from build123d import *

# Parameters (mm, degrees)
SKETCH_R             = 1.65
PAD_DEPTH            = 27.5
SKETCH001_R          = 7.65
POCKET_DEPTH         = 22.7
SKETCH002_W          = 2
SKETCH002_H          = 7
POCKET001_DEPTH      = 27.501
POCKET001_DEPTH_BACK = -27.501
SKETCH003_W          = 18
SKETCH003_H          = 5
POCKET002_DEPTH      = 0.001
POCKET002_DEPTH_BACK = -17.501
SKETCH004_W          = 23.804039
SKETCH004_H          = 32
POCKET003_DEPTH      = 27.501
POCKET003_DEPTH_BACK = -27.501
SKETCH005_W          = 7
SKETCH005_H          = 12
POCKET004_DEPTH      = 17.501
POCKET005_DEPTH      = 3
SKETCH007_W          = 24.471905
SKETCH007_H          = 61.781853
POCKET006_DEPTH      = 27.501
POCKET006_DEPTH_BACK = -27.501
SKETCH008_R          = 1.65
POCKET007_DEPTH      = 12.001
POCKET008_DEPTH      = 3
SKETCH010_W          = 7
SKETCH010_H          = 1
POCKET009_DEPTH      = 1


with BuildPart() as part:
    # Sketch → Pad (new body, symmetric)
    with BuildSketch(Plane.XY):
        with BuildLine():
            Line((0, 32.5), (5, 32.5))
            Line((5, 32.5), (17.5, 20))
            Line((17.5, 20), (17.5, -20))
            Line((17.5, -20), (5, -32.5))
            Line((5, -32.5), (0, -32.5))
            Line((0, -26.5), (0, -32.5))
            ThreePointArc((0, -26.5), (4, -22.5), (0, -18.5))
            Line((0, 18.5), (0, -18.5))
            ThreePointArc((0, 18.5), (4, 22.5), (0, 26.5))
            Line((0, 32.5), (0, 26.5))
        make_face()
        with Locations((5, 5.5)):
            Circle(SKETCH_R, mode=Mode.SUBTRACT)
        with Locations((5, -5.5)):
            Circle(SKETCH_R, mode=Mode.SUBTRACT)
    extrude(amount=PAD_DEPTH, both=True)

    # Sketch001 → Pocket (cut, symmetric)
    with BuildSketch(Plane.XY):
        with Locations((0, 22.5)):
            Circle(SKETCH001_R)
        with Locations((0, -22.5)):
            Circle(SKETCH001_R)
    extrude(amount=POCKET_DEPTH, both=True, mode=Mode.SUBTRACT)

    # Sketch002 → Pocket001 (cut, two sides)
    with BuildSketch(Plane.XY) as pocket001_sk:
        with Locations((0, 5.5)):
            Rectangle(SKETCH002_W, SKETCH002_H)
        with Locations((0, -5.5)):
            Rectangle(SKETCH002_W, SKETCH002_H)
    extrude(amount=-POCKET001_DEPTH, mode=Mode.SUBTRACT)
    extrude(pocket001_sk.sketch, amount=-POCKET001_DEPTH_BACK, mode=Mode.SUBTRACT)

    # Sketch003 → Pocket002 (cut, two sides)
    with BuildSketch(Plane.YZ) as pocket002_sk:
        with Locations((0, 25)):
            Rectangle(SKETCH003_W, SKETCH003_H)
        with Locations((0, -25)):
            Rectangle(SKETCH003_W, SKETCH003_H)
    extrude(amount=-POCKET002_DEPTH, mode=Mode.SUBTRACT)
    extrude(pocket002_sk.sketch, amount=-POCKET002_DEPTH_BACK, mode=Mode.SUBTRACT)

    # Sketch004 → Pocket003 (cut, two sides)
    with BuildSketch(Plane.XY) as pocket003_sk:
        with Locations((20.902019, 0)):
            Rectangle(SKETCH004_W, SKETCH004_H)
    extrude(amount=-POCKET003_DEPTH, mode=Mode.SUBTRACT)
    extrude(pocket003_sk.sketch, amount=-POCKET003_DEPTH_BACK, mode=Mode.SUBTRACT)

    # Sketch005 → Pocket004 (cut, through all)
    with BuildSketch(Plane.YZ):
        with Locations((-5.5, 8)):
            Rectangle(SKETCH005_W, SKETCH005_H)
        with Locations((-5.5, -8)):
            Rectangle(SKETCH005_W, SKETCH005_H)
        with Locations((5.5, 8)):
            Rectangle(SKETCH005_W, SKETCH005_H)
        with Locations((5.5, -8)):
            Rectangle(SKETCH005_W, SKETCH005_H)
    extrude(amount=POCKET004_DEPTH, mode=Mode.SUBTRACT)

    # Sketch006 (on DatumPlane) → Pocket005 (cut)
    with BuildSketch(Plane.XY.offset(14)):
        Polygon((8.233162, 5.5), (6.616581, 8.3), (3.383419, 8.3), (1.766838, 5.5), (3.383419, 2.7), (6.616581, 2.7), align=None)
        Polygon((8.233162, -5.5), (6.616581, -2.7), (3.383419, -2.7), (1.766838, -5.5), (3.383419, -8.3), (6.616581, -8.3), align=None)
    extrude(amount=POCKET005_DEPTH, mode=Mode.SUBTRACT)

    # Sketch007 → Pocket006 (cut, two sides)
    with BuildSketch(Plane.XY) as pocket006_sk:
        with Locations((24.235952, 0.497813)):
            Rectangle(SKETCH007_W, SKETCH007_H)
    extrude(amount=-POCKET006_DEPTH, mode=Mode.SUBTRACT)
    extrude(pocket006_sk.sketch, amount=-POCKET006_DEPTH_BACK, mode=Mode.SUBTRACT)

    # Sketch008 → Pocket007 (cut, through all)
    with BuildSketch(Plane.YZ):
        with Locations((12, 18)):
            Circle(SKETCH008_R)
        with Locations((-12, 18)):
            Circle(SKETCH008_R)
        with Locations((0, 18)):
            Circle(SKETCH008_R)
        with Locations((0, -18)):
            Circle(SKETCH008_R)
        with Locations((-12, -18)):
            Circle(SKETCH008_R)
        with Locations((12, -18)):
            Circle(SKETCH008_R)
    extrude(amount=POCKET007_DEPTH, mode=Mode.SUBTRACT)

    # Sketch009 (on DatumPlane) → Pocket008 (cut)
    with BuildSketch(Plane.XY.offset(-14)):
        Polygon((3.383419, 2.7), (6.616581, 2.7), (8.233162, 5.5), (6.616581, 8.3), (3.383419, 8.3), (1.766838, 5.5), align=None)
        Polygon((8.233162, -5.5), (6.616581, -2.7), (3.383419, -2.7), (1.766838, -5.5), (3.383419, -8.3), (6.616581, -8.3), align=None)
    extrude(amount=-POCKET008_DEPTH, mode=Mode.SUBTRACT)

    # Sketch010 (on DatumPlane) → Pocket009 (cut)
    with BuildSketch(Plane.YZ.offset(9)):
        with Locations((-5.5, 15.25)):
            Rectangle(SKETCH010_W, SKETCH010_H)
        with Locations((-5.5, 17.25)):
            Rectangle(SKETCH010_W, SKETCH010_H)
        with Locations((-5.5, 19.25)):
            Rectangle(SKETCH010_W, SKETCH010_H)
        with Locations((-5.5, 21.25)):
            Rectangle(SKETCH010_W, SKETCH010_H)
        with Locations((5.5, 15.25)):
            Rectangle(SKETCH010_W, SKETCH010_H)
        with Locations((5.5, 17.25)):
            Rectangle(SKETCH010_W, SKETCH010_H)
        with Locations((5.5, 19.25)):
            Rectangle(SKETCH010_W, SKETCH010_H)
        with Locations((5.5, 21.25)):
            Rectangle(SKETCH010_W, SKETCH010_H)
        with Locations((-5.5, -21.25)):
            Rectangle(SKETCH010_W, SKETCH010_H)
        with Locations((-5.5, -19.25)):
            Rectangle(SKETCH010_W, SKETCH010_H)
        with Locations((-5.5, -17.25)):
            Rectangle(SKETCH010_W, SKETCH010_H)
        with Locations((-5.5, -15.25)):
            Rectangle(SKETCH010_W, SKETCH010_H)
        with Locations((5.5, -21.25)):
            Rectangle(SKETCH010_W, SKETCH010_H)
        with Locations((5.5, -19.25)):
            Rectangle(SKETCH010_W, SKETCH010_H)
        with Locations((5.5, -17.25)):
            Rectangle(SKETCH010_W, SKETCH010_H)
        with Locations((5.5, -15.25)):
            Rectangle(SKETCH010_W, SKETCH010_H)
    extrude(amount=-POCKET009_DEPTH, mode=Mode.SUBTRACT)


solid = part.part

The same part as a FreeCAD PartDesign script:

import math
import FreeCAD as App
import Part
import Sketcher
Q = App.Units.Quantity

doc = App.newDocument("Part")
body = doc.addObject("PartDesign::Body", "Body")

# Sketch on XY plane
sketch1 = body.newObject("Sketcher::SketchObject", "Sketch")
sketch1.AttachmentSupport = (doc.getObject("XY_Plane"), [""])
sketch1.MapMode = "FlatFace"
sketch1.addGeometry(Part.LineSegment(App.Vector(5, 32.5, 0), App.Vector(0, 32.5, 0)), False)
sketch1.addGeometry(Part.LineSegment(App.Vector(0, 32.5, 0), App.Vector(0, 26.5, 0)), False)
sketch1.addGeometry(Part.ArcOfCircle(Part.Circle(App.Vector(0, 22.5, 0), App.Vector(0, 0, 1), 4), math.radians(-90), math.radians(90)), False)
sketch1.addGeometry(Part.LineSegment(App.Vector(0, 18.5, 0), App.Vector(0, -18.5, 0)), False)
sketch1.addGeometry(Part.ArcOfCircle(Part.Circle(App.Vector(0, -22.5, 0), App.Vector(0, 0, 1), 4), math.radians(-90), math.radians(90)), False)
sketch1.addGeometry(Part.LineSegment(App.Vector(0, -26.5, 0), App.Vector(0, -32.5, 0)), False)
sketch1.addGeometry(Part.LineSegment(App.Vector(0, -32.5, 0), App.Vector(5, -32.5, 0)), False)
sketch1.addGeometry(Part.LineSegment(App.Vector(5, -32.5, 0), App.Vector(17.5, -20, 0)), False)
sketch1.addGeometry(Part.LineSegment(App.Vector(17.5, -20, 0), App.Vector(17.5, 20, 0)), False)
sketch1.addGeometry(Part.LineSegment(App.Vector(17.5, 20, 0), App.Vector(5, 32.5, 0)), False)
sketch1.addGeometry(Part.Circle(App.Vector(5, -5.5, 0), App.Vector(0, 0, 1), 1.6), False)
sketch1.addGeometry(Part.Circle(App.Vector(5, 5.5, 0), App.Vector(0, 0, 1), 1.6), False)
sketch1.addConstraint(Sketcher.Constraint("Coincident", 0, 2, 1, 1))
sketch1.addConstraint(Sketcher.Constraint("Coincident", 1, 2, 2, 2))
sketch1.addConstraint(Sketcher.Constraint("Coincident", 2, 1, 3, 1))
sketch1.addConstraint(Sketcher.Constraint("Coincident", 3, 2, 4, 2))
sketch1.addConstraint(Sketcher.Constraint("Coincident", 4, 1, 5, 1))
sketch1.addConstraint(Sketcher.Constraint("Coincident", 5, 2, 6, 1))
sketch1.addConstraint(Sketcher.Constraint("Coincident", 6, 2, 7, 1))
sketch1.addConstraint(Sketcher.Constraint("Coincident", 7, 2, 8, 1))
sketch1.addConstraint(Sketcher.Constraint("Coincident", 8, 2, 9, 1))
sketch1.addConstraint(Sketcher.Constraint("Coincident", 9, 2, 0, 1))
sketch1.addConstraint(Sketcher.Constraint("Horizontal", 0))
sketch1.addConstraint(Sketcher.Constraint("Vertical", 1))
sketch1.addConstraint(Sketcher.Constraint("Vertical", 3))
sketch1.addConstraint(Sketcher.Constraint("Vertical", 5))
sketch1.addConstraint(Sketcher.Constraint("Horizontal", 6))
sketch1.addConstraint(Sketcher.Constraint("Vertical", 8))
sketch1.addConstraint(Sketcher.Constraint("Equal", 2, 4))
sketch1.addConstraint(Sketcher.Constraint("Equal", 10, 11))
sketch1.addConstraint(Sketcher.Constraint("Symmetric", 2, 3, 4, 3, -1, 1))
sketch1.addConstraint(Sketcher.Constraint("Symmetric", 0, 2, 5, 2, -1, 1))
sketch1.addConstraint(Sketcher.Constraint("Symmetric", 10, 3, 11, 3, -1))
sketch1.addConstraint(Sketcher.Constraint("PointOnObject", 2, 3, -2))
sketch1.addConstraint(Sketcher.Constraint("PointOnObject", 0, 2, -2))
sketch1.addConstraint(Sketcher.Constraint("PointOnObject", 2, 1, -2))
sketch1.addConstraint(Sketcher.Constraint("Perpendicular", 7, 9))
sketch1.addConstraint(Sketcher.Constraint("Vertical", 11, 3, 6, 2))
sketch1.addConstraint(Sketcher.Constraint("Vertical", 6, 2, 9, 2))
sketch1.addConstraint(Sketcher.Constraint("Equal", 7, 9))
sketch1.addConstraint(Sketcher.Constraint("Radius", 2, Q("4 mm")))
sketch1.addConstraint(Sketcher.Constraint("Diameter", 10, Q("3.3 mm")))
sketch1.addConstraint(Sketcher.Constraint("DistanceX", 0, 2, 0, 1, Q("5 mm")))
sketch1.addConstraint(Sketcher.Constraint("DistanceY", 1, 2, 1, 1, Q("6 mm")))
sketch1.addConstraint(Sketcher.Constraint("DistanceY", 3, 2, 3, 1, Q("37 mm")))
sketch1.addConstraint(Sketcher.Constraint("DistanceY", 8, 1, 8, 2, Q("40 mm")))
sketch1.addConstraint(Sketcher.Constraint("DistanceY", 4, 3, 10, 3, Q("17 mm")))
pad1 = body.newObject("PartDesign::Pad", "Pad")
pad1.Profile = sketch1
pad1.Length = 55
pad1.Midplane = True

# Sketch on XY plane
sketch2 = body.newObject("Sketcher::SketchObject", "Sketch001")
sketch2.AttachmentSupport = (doc.getObject("XY_Plane"), [""])
sketch2.MapMode = "FlatFace"
sketch2.addGeometry(Part.Circle(App.Vector(0, 22, 0), App.Vector(0, 0, 1), 8), False)
sketch2.addGeometry(Part.Circle(App.Vector(0, -22, 0), App.Vector(0, 0, 1), 8), False)
sketch2.addConstraint(Sketcher.Constraint("Equal", 0, 1))
sketch2.addConstraint(Sketcher.Constraint("Symmetric", 0, 3, 1, 3, -1, 1))
sketch2.addConstraint(Sketcher.Constraint("PointOnObject", 0, 3, -2))
sketch2.addConstraint(Sketcher.Constraint("Diameter", 0, Q("15.3 mm")))
sketch2.addConstraint(Sketcher.Constraint("DistanceY", 1, 3, 0, 3, Q("45 mm")))
pocket1 = body.newObject("PartDesign::Pocket", "Pocket")
pocket1.Profile = sketch2
pocket1.Length = 45.4
pocket1.Midplane = True

# Sketch on XY plane
sketch3 = body.newObject("Sketcher::SketchObject", "Sketch002")
sketch3.AttachmentSupport = (doc.getObject("XY_Plane"), [""])
sketch3.MapMode = "FlatFace"
sketch3.addGeometry(Part.LineSegment(App.Vector(-1, 9, 0), App.Vector(-1, 2, 0)), False)
sketch3.addGeometry(Part.LineSegment(App.Vector(-1, 2, 0), App.Vector(1, 2, 0)), False)
sketch3.addGeometry(Part.LineSegment(App.Vector(1, 2, 0), App.Vector(1, 9, 0)), False)
sketch3.addGeometry(Part.LineSegment(App.Vector(1, 9, 0), App.Vector(-1, 9, 0)), False)
sketch3.addGeometry(Part.LineSegment(App.Vector(-1, -2, 0), App.Vector(-1, -9, 0)), False)
sketch3.addGeometry(Part.LineSegment(App.Vector(-1, -9, 0), App.Vector(1, -9, 0)), False)
sketch3.addGeometry(Part.LineSegment(App.Vector(1, -9, 0), App.Vector(1, -2, 0)), False)
sketch3.addGeometry(Part.LineSegment(App.Vector(1, -2, 0), App.Vector(-1, -2, 0)), False)
sketch3.addConstraint(Sketcher.Constraint("Coincident", 0, 2, 1, 1))
sketch3.addConstraint(Sketcher.Constraint("Coincident", 1, 2, 2, 1))
sketch3.addConstraint(Sketcher.Constraint("Coincident", 2, 2, 3, 1))
sketch3.addConstraint(Sketcher.Constraint("Coincident", 3, 2, 0, 1))
sketch3.addConstraint(Sketcher.Constraint("Coincident", 4, 2, 5, 1))
sketch3.addConstraint(Sketcher.Constraint("Coincident", 5, 2, 6, 1))
sketch3.addConstraint(Sketcher.Constraint("Coincident", 6, 2, 7, 1))
sketch3.addConstraint(Sketcher.Constraint("Coincident", 7, 2, 4, 1))
sketch3.addConstraint(Sketcher.Constraint("Vertical", 0))
sketch3.addConstraint(Sketcher.Constraint("Horizontal", 1))
sketch3.addConstraint(Sketcher.Constraint("Vertical", 2))
sketch3.addConstraint(Sketcher.Constraint("Horizontal", 3))
sketch3.addConstraint(Sketcher.Constraint("Vertical", 4))
sketch3.addConstraint(Sketcher.Constraint("Horizontal", 5))
sketch3.addConstraint(Sketcher.Constraint("Vertical", 6))
sketch3.addConstraint(Sketcher.Constraint("Horizontal", 7))
sketch3.addConstraint(Sketcher.Constraint("Symmetric", 2, 2, 4, 2, -1, 1))
sketch3.addConstraint(Sketcher.Constraint("Symmetric", 0, 2, 6, 2, -1, 1))
sketch3.addConstraint(Sketcher.Constraint("Vertical", 3, 2, 4, 2))
sketch3.addConstraint(Sketcher.Constraint("DistanceX", 1, 1, 1, 2, Q("2 mm")))
sketch3.addConstraint(Sketcher.Constraint("DistanceY", 0, 2, 0, 1, Q("7 mm")))
sketch3.addConstraint(Sketcher.Constraint("DistanceY", -1, 1, 0, 2, Q("2 mm")))
pocket2 = body.newObject("PartDesign::Pocket", "Pocket001")
pocket2.Profile = sketch3
pocket2.Type = "ThroughAll"
pocket2.Midplane = True

# Sketch on YZ plane
sketch4 = body.newObject("Sketcher::SketchObject", "Sketch003")
sketch4.AttachmentSupport = (doc.getObject("YZ_Plane"), [""])
sketch4.MapMode = "FlatFace"
sketch4.addGeometry(Part.LineSegment(App.Vector(-9, 28, 0), App.Vector(-9, 22, 0)), False)
sketch4.addGeometry(Part.LineSegment(App.Vector(-9, 22, 0), App.Vector(9, 22, 0)), False)
sketch4.addGeometry(Part.LineSegment(App.Vector(9, 22, 0), App.Vector(9, 28, 0)), False)
sketch4.addGeometry(Part.LineSegment(App.Vector(9, 28, 0), App.Vector(-9, 28, 0)), False)
sketch4.addGeometry(Part.LineSegment(App.Vector(-9, -22, 0), App.Vector(-9, -28, 0)), False)
sketch4.addGeometry(Part.LineSegment(App.Vector(-9, -28, 0), App.Vector(9, -28, 0)), False)
sketch4.addGeometry(Part.LineSegment(App.Vector(9, -28, 0), App.Vector(9, -22, 0)), False)
sketch4.addGeometry(Part.LineSegment(App.Vector(9, -22, 0), App.Vector(-9, -22, 0)), False)
sketch4.addConstraint(Sketcher.Constraint("Coincident", 0, 2, 1, 1))
sketch4.addConstraint(Sketcher.Constraint("Coincident", 1, 2, 2, 1))
sketch4.addConstraint(Sketcher.Constraint("Coincident", 2, 2, 3, 1))
sketch4.addConstraint(Sketcher.Constraint("Coincident", 3, 2, 0, 1))
sketch4.addConstraint(Sketcher.Constraint("Coincident", 4, 2, 5, 1))
sketch4.addConstraint(Sketcher.Constraint("Coincident", 5, 2, 6, 1))
sketch4.addConstraint(Sketcher.Constraint("Coincident", 6, 2, 7, 1))
sketch4.addConstraint(Sketcher.Constraint("Coincident", 7, 2, 4, 1))
sketch4.addConstraint(Sketcher.Constraint("Vertical", 0))
sketch4.addConstraint(Sketcher.Constraint("Horizontal", 1))
sketch4.addConstraint(Sketcher.Constraint("Vertical", 2))
sketch4.addConstraint(Sketcher.Constraint("Horizontal", 3))
sketch4.addConstraint(Sketcher.Constraint("Vertical", 4))
sketch4.addConstraint(Sketcher.Constraint("Horizontal", 5))
sketch4.addConstraint(Sketcher.Constraint("Vertical", 6))
sketch4.addConstraint(Sketcher.Constraint("Horizontal", 7))
sketch4.addConstraint(Sketcher.Constraint("Symmetric", 2, 2, 4, 2, -1, 1))
sketch4.addConstraint(Sketcher.Constraint("Symmetric", 0, 2, 6, 2, -1, 1))
sketch4.addConstraint(Sketcher.Constraint("Vertical", 3, 2, 4, 2))
sketch4.addConstraint(Sketcher.Constraint("DistanceX", 1, 1, 1, 2, Q("18 mm")))
sketch4.addConstraint(Sketcher.Constraint("DistanceY", 0, 2, 0, 1, Q("5 mm")))
sketch4.addConstraint(Sketcher.Constraint("DistanceY", 4, 2, 0, 2, Q("50 mm")))
pocket3 = body.newObject("PartDesign::Pocket", "Pocket002")
pocket3.Profile = sketch4
pocket3.Type = "ThroughAll"
pocket3.Midplane = True

# Sketch on XY plane
sketch5 = body.newObject("Sketcher::SketchObject", "Sketch004")
sketch5.AttachmentSupport = (doc.getObject("XY_Plane"), [""])
sketch5.MapMode = "FlatFace"
sketch5.addGeometry(Part.LineSegment(App.Vector(9, 16, 0), App.Vector(9, -16, 0)), False)
sketch5.addGeometry(Part.LineSegment(App.Vector(9, -16, 0), App.Vector(33, -16, 0)), False)
sketch5.addGeometry(Part.LineSegment(App.Vector(33, -16, 0), App.Vector(33, 16, 0)), False)
sketch5.addGeometry(Part.LineSegment(App.Vector(33, 16, 0), App.Vector(9, 16, 0)), False)
sketch5.addConstraint(Sketcher.Constraint("Coincident", 0, 2, 1, 1))
sketch5.addConstraint(Sketcher.Constraint("Coincident", 1, 2, 2, 1))
sketch5.addConstraint(Sketcher.Constraint("Coincident", 2, 2, 3, 1))
sketch5.addConstraint(Sketcher.Constraint("Coincident", 3, 2, 0, 1))
sketch5.addConstraint(Sketcher.Constraint("Vertical", 0))
sketch5.addConstraint(Sketcher.Constraint("Horizontal", 1))
sketch5.addConstraint(Sketcher.Constraint("Vertical", 2))
sketch5.addConstraint(Sketcher.Constraint("Horizontal", 3))
sketch5.addConstraint(Sketcher.Constraint("DistanceY", 0, 2, 0, 1, Q("32 mm")))
sketch5.addConstraint(Sketcher.Constraint("DistanceX", -1, 1, 0, 2, Q("8.999999 mm")))
sketch5.addConstraint(Sketcher.Constraint("DistanceY", 0, 2, -1, 1, Q("16 mm")))
sketch5.addConstraint(Sketcher.Constraint("DistanceX", 1, 1, 1, 2, Q("23.804039 mm")))
pocket4 = body.newObject("PartDesign::Pocket", "Pocket003")
pocket4.Profile = sketch5
pocket4.Type = "ThroughAll"
pocket4.Midplane = True

# Sketch on YZ plane
sketch6 = body.newObject("Sketcher::SketchObject", "Sketch005")
sketch6.AttachmentSupport = (doc.getObject("YZ_Plane"), [""])
sketch6.MapMode = "FlatFace"
sketch6.addGeometry(Part.LineSegment(App.Vector(-9, 14, 0), App.Vector(-9, 2, 0)), False)
sketch6.addGeometry(Part.LineSegment(App.Vector(-9, 2, 0), App.Vector(-2, 2, 0)), False)
sketch6.addGeometry(Part.LineSegment(App.Vector(-2, 2, 0), App.Vector(-2, 14, 0)), False)
sketch6.addGeometry(Part.LineSegment(App.Vector(-2, 14, 0), App.Vector(-9, 14, 0)), False)
sketch6.addGeometry(Part.LineSegment(App.Vector(-9, -2, 0), App.Vector(-9, -14, 0)), False)
sketch6.addGeometry(Part.LineSegment(App.Vector(-9, -14, 0), App.Vector(-2, -14, 0)), False)
sketch6.addGeometry(Part.LineSegment(App.Vector(-2, -14, 0), App.Vector(-2, -2, 0)), False)
sketch6.addGeometry(Part.LineSegment(App.Vector(-2, -2, 0), App.Vector(-9, -2, 0)), False)
sketch6.addGeometry(Part.LineSegment(App.Vector(2, 14, 0), App.Vector(2, 2, 0)), False)
sketch6.addGeometry(Part.LineSegment(App.Vector(2, 2, 0), App.Vector(9, 2, 0)), False)
sketch6.addGeometry(Part.LineSegment(App.Vector(9, 2, 0), App.Vector(9, 14, 0)), False)
sketch6.addGeometry(Part.LineSegment(App.Vector(9, 14, 0), App.Vector(2, 14, 0)), False)
sketch6.addGeometry(Part.LineSegment(App.Vector(2, -2, 0), App.Vector(2, -14, 0)), False)
sketch6.addGeometry(Part.LineSegment(App.Vector(2, -14, 0), App.Vector(9, -14, 0)), False)
sketch6.addGeometry(Part.LineSegment(App.Vector(9, -14, 0), App.Vector(9, -2, 0)), False)
sketch6.addGeometry(Part.LineSegment(App.Vector(9, -2, 0), App.Vector(2, -2, 0)), False)
sketch6.addConstraint(Sketcher.Constraint("Coincident", 0, 2, 1, 1))
sketch6.addConstraint(Sketcher.Constraint("Coincident", 1, 2, 2, 1))
sketch6.addConstraint(Sketcher.Constraint("Coincident", 2, 2, 3, 1))
sketch6.addConstraint(Sketcher.Constraint("Coincident", 3, 2, 0, 1))
sketch6.addConstraint(Sketcher.Constraint("Coincident", 4, 2, 5, 1))
sketch6.addConstraint(Sketcher.Constraint("Coincident", 5, 2, 6, 1))
sketch6.addConstraint(Sketcher.Constraint("Coincident", 6, 2, 7, 1))
sketch6.addConstraint(Sketcher.Constraint("Coincident", 7, 2, 4, 1))
sketch6.addConstraint(Sketcher.Constraint("Coincident", 8, 2, 9, 1))
sketch6.addConstraint(Sketcher.Constraint("Coincident", 9, 2, 10, 1))
sketch6.addConstraint(Sketcher.Constraint("Coincident", 10, 2, 11, 1))
sketch6.addConstraint(Sketcher.Constraint("Coincident", 11, 2, 8, 1))
sketch6.addConstraint(Sketcher.Constraint("Coincident", 12, 2, 13, 1))
sketch6.addConstraint(Sketcher.Constraint("Coincident", 13, 2, 14, 1))
sketch6.addConstraint(Sketcher.Constraint("Coincident", 14, 2, 15, 1))
sketch6.addConstraint(Sketcher.Constraint("Coincident", 15, 2, 12, 1))
sketch6.addConstraint(Sketcher.Constraint("Vertical", 0))
sketch6.addConstraint(Sketcher.Constraint("Horizontal", 1))
sketch6.addConstraint(Sketcher.Constraint("Vertical", 2))
sketch6.addConstraint(Sketcher.Constraint("Horizontal", 3))
sketch6.addConstraint(Sketcher.Constraint("Vertical", 4))
sketch6.addConstraint(Sketcher.Constraint("Horizontal", 5))
sketch6.addConstraint(Sketcher.Constraint("Vertical", 6))
sketch6.addConstraint(Sketcher.Constraint("Horizontal", 7))
sketch6.addConstraint(Sketcher.Constraint("Vertical", 8))
sketch6.addConstraint(Sketcher.Constraint("Horizontal", 9))
sketch6.addConstraint(Sketcher.Constraint("Vertical", 10))
sketch6.addConstraint(Sketcher.Constraint("Horizontal", 11))
sketch6.addConstraint(Sketcher.Constraint("Vertical", 12))
sketch6.addConstraint(Sketcher.Constraint("Horizontal", 13))
sketch6.addConstraint(Sketcher.Constraint("Vertical", 14))
sketch6.addConstraint(Sketcher.Constraint("Horizontal", 15))
sketch6.addConstraint(Sketcher.Constraint("Symmetric", 6, 2, 8, 2, -1, 1))
sketch6.addConstraint(Sketcher.Constraint("Symmetric", 4, 2, 10, 2, -1, 1))
sketch6.addConstraint(Sketcher.Constraint("Symmetric", 2, 2, 12, 2, -1, 1))
sketch6.addConstraint(Sketcher.Constraint("Symmetric", 0, 2, 14, 2, -1, 1))
sketch6.addConstraint(Sketcher.Constraint("Symmetric", 1, 2, 8, 2, -2))
sketch6.addConstraint(Sketcher.Constraint("Symmetric", 3, 2, 10, 2, -2))
sketch6.addConstraint(Sketcher.Constraint("DistanceX", 1, 1, 1, 2, Q("7 mm")))
sketch6.addConstraint(Sketcher.Constraint("DistanceY", 0, 2, 0, 1, Q("12 mm")))
sketch6.addConstraint(Sketcher.Constraint("DistanceX", 0, 2, -1, 1, Q("9 mm")))
sketch6.addConstraint(Sketcher.Constraint("DistanceY", -1, 1, 0, 2, Q("2 mm")))
pocket5 = body.newObject("PartDesign::Pocket", "Pocket004")
pocket5.Profile = sketch6
pocket5.Type = "ThroughAll"
pocket5.Reversed = True

# Sketch on XY plane
sketch7 = body.newObject("Sketcher::SketchObject", "Sketch006")
sketch7.AttachmentSupport = (doc.getObject("XY_Plane"), [""])
sketch7.MapMode = "FlatFace"
sketch7.AttachmentOffset = App.Placement(App.Vector(0, 0, 14), App.Rotation())
sketch7.addGeometry(Part.LineSegment(App.Vector(8.2, 5.5, 0), App.Vector(6.6, 8.3, 0)), False)
sketch7.addGeometry(Part.LineSegment(App.Vector(6.6, 8.3, 0), App.Vector(3.4, 8.3, 0)), False)
sketch7.addGeometry(Part.LineSegment(App.Vector(3.4, 8.3, 0), App.Vector(1.8, 5.5, 0)), False)
sketch7.addGeometry(Part.LineSegment(App.Vector(1.8, 5.5, 0), App.Vector(3.4, 2.7, 0)), False)
sketch7.addGeometry(Part.LineSegment(App.Vector(3.4, 2.7, 0), App.Vector(6.6, 2.7, 0)), False)
sketch7.addGeometry(Part.LineSegment(App.Vector(6.6, 2.7, 0), App.Vector(8.2, 5.5, 0)), False)
sketch7.addGeometry(Part.LineSegment(App.Vector(8.2, -5.5, 0), App.Vector(6.6, -2.7, 0)), False)
sketch7.addGeometry(Part.LineSegment(App.Vector(6.6, -2.7, 0), App.Vector(3.4, -2.7, 0)), False)
sketch7.addGeometry(Part.LineSegment(App.Vector(3.4, -2.7, 0), App.Vector(1.8, -5.5, 0)), False)
sketch7.addGeometry(Part.LineSegment(App.Vector(1.8, -5.5, 0), App.Vector(3.4, -8.3, 0)), False)
sketch7.addGeometry(Part.LineSegment(App.Vector(3.4, -8.3, 0), App.Vector(6.6, -8.3, 0)), False)
sketch7.addGeometry(Part.LineSegment(App.Vector(6.6, -8.3, 0), App.Vector(8.2, -5.5, 0)), False)
sketch7.addConstraint(Sketcher.Constraint("Coincident", 0, 2, 1, 1))
sketch7.addConstraint(Sketcher.Constraint("Coincident", 1, 2, 2, 1))
sketch7.addConstraint(Sketcher.Constraint("Coincident", 2, 2, 3, 1))
sketch7.addConstraint(Sketcher.Constraint("Coincident", 3, 2, 4, 1))
sketch7.addConstraint(Sketcher.Constraint("Coincident", 4, 2, 5, 1))
sketch7.addConstraint(Sketcher.Constraint("Coincident", 5, 2, 0, 1))
sketch7.addConstraint(Sketcher.Constraint("Coincident", 6, 2, 7, 1))
sketch7.addConstraint(Sketcher.Constraint("Coincident", 7, 2, 8, 1))
sketch7.addConstraint(Sketcher.Constraint("Coincident", 8, 2, 9, 1))
sketch7.addConstraint(Sketcher.Constraint("Coincident", 9, 2, 10, 1))
sketch7.addConstraint(Sketcher.Constraint("Coincident", 10, 2, 11, 1))
sketch7.addConstraint(Sketcher.Constraint("Coincident", 11, 2, 6, 1))
sketch7.addConstraint(Sketcher.Constraint("Horizontal", 1))
sketch7.addConstraint(Sketcher.Constraint("Horizontal", 4))
sketch7.addConstraint(Sketcher.Constraint("Horizontal", 7))
sketch7.addConstraint(Sketcher.Constraint("Horizontal", 10))
sketch7.addConstraint(Sketcher.Constraint("Symmetric", 4, 2, 6, 2, -1))
sketch7.addConstraint(Sketcher.Constraint("Symmetric", 2, 2, 8, 2, -1))
sketch7.addConstraint(Sketcher.Constraint("Symmetric", 1, 2, 9, 2, -1))
sketch7.addConstraint(Sketcher.Constraint("Symmetric", 5, 2, 11, 2, -1))
sketch7.addConstraint(Sketcher.Constraint("Parallel", 0, 3))
sketch7.addConstraint(Sketcher.Constraint("Parallel", 2, 5))
sketch7.addConstraint(Sketcher.Constraint("Parallel", 3, 6))
sketch7.addConstraint(Sketcher.Constraint("Parallel", 5, 8))
sketch7.addConstraint(Sketcher.Constraint("Parallel", 8, 11))
sketch7.addConstraint(Sketcher.Constraint("Horizontal", 2, 2, 5, 2))
sketch7.addConstraint(Sketcher.Constraint("Vertical", 1, 2, 3, 2))
sketch7.addConstraint(Sketcher.Constraint("Angle", 0, Q("120.000004 deg")))
sketch7.addConstraint(Sketcher.Constraint("DistanceY", 6, 2, 0, 2, Q("11 mm")))
sketch7.addConstraint(Sketcher.Constraint("DistanceY", -1, 1, 0, 2, Q("8.3 mm")))
sketch7.addConstraint(Sketcher.Constraint("DistanceX", 1, 2, 1, 1, Q("3.233162 mm")))
sketch7.addConstraint(Sketcher.Constraint("DistanceX", -1, 1, 0, 2, Q("6.616581 mm")))
pocket6 = body.newObject("PartDesign::Pocket", "Pocket005")
pocket6.Profile = sketch7
pocket6.Length = 3
pocket6.Reversed = True

# Sketch on XY plane
sketch8 = body.newObject("Sketcher::SketchObject", "Sketch007")
sketch8.AttachmentSupport = (doc.getObject("XY_Plane"), [""])
sketch8.MapMode = "FlatFace"
sketch8.addGeometry(Part.LineSegment(App.Vector(12, 31, 0), App.Vector(12, -30, 0)), False)
sketch8.addGeometry(Part.LineSegment(App.Vector(12, -30, 0), App.Vector(36, -30, 0)), False)
sketch8.addGeometry(Part.LineSegment(App.Vector(36, -30, 0), App.Vector(36, 31, 0)), False)
sketch8.addGeometry(Part.LineSegment(App.Vector(36, 31, 0), App.Vector(12, 31, 0)), False)
sketch8.addConstraint(Sketcher.Constraint("Coincident", 0, 2, 1, 1))
sketch8.addConstraint(Sketcher.Constraint("Coincident", 1, 2, 2, 1))
sketch8.addConstraint(Sketcher.Constraint("Coincident", 2, 2, 3, 1))
sketch8.addConstraint(Sketcher.Constraint("Coincident", 3, 2, 0, 1))
sketch8.addConstraint(Sketcher.Constraint("Vertical", 0))
sketch8.addConstraint(Sketcher.Constraint("Horizontal", 1))
sketch8.addConstraint(Sketcher.Constraint("Vertical", 2))
sketch8.addConstraint(Sketcher.Constraint("Horizontal", 3))
sketch8.addConstraint(Sketcher.Constraint("DistanceX", -1, 1, 0, 2, Q("11.999999 mm")))
sketch8.addConstraint(Sketcher.Constraint("DistanceX", 1, 1, 1, 2, Q("24.471905 mm")))
sketch8.addConstraint(Sketcher.Constraint("DistanceY", 0, 2, 0, 1, Q("61.781853 mm")))
sketch8.addConstraint(Sketcher.Constraint("DistanceY", -1, 1, 2, 2, Q("31.388739 mm")))
pocket7 = body.newObject("PartDesign::Pocket", "Pocket006")
pocket7.Profile = sketch8
pocket7.Type = "ThroughAll"
pocket7.Midplane = True

# Sketch on YZ plane
sketch9 = body.newObject("Sketcher::SketchObject", "Sketch008")
sketch9.AttachmentSupport = (doc.getObject("YZ_Plane"), [""])
sketch9.MapMode = "FlatFace"
sketch9.addGeometry(Part.Circle(App.Vector(12, 18, 0), App.Vector(0, 0, 1), 1.6), False)
sketch9.addGeometry(Part.Circle(App.Vector(-12, 18, 0), App.Vector(0, 0, 1), 1.6), False)
sketch9.addGeometry(Part.Circle(App.Vector(0, 18, 0), App.Vector(0, 0, 1), 1.6), False)
sketch9.addGeometry(Part.Circle(App.Vector(0, -18, 0), App.Vector(0, 0, 1), 1.6), False)
sketch9.addGeometry(Part.Circle(App.Vector(-12, -18, 0), App.Vector(0, 0, 1), 1.6), False)
sketch9.addGeometry(Part.Circle(App.Vector(12, -18, 0), App.Vector(0, 0, 1), 1.6), False)
sketch9.addConstraint(Sketcher.Constraint("Equal", 0, 1))
sketch9.addConstraint(Sketcher.Constraint("Equal", 1, 2))
sketch9.addConstraint(Sketcher.Constraint("Equal", 2, 3))
sketch9.addConstraint(Sketcher.Constraint("Equal", 3, 4))
sketch9.addConstraint(Sketcher.Constraint("Equal", 4, 5))
sketch9.addConstraint(Sketcher.Constraint("Symmetric", 2, 3, 3, 3, -1, 1))
sketch9.addConstraint(Sketcher.Constraint("Symmetric", 0, 3, 4, 3, -1, 1))
sketch9.addConstraint(Sketcher.Constraint("Symmetric", 1, 3, 5, 3, -1, 1))
sketch9.addConstraint(Sketcher.Constraint("Symmetric", 0, 3, 1, 3, -2))
sketch9.addConstraint(Sketcher.Constraint("PointOnObject", 2, 3, -2))
sketch9.addConstraint(Sketcher.Constraint("Horizontal", 1, 3, 2, 3))
sketch9.addConstraint(Sketcher.Constraint("Diameter", 0, Q("3.3 mm")))
sketch9.addConstraint(Sketcher.Constraint("DistanceX", -1, 1, 0, 3, Q("12 mm")))
sketch9.addConstraint(Sketcher.Constraint("DistanceY", -1, 1, 0, 3, Q("18 mm")))
pocket8 = body.newObject("PartDesign::Pocket", "Pocket007")
pocket8.Profile = sketch9
pocket8.Type = "ThroughAll"
pocket8.Reversed = True

# Sketch on XY plane
sketch10 = body.newObject("Sketcher::SketchObject", "Sketch009")
sketch10.AttachmentSupport = (doc.getObject("XY_Plane"), [""])
sketch10.MapMode = "FlatFace"
sketch10.AttachmentOffset = App.Placement(App.Vector(0, 0, -14), App.Rotation())
sketch10.addGeometry(Part.LineSegment(App.Vector(3.4, 2.7, 0), App.Vector(6.6, 2.7, 0)), False)
sketch10.addGeometry(Part.LineSegment(App.Vector(6.6, 2.7, 0), App.Vector(8.2, 5.5, 0)), False)
sketch10.addGeometry(Part.LineSegment(App.Vector(8.2, 5.5, 0), App.Vector(6.6, 8.3, 0)), False)
sketch10.addGeometry(Part.LineSegment(App.Vector(6.6, 8.3, 0), App.Vector(3.4, 8.3, 0)), False)
sketch10.addGeometry(Part.LineSegment(App.Vector(3.4, 8.3, 0), App.Vector(1.8, 5.5, 0)), False)
sketch10.addGeometry(Part.LineSegment(App.Vector(1.8, 5.5, 0), App.Vector(3.4, 2.7, 0)), False)
sketch10.addGeometry(Part.LineSegment(App.Vector(8.2, -5.5, 0), App.Vector(6.6, -2.7, 0)), False)
sketch10.addGeometry(Part.LineSegment(App.Vector(6.6, -2.7, 0), App.Vector(3.4, -2.7, 0)), False)
sketch10.addGeometry(Part.LineSegment(App.Vector(3.4, -2.7, 0), App.Vector(1.8, -5.5, 0)), False)
sketch10.addGeometry(Part.LineSegment(App.Vector(1.8, -5.5, 0), App.Vector(3.4, -8.3, 0)), False)
sketch10.addGeometry(Part.LineSegment(App.Vector(3.4, -8.3, 0), App.Vector(6.6, -8.3, 0)), False)
sketch10.addGeometry(Part.LineSegment(App.Vector(6.6, -8.3, 0), App.Vector(8.2, -5.5, 0)), False)
sketch10.addConstraint(Sketcher.Constraint("Coincident", 0, 2, 1, 1))
sketch10.addConstraint(Sketcher.Constraint("Coincident", 1, 2, 2, 1))
sketch10.addConstraint(Sketcher.Constraint("Coincident", 2, 2, 3, 1))
sketch10.addConstraint(Sketcher.Constraint("Coincident", 3, 2, 4, 1))
sketch10.addConstraint(Sketcher.Constraint("Coincident", 4, 2, 5, 1))
sketch10.addConstraint(Sketcher.Constraint("Coincident", 5, 2, 0, 1))
sketch10.addConstraint(Sketcher.Constraint("Coincident", 6, 2, 7, 1))
sketch10.addConstraint(Sketcher.Constraint("Coincident", 7, 2, 8, 1))
sketch10.addConstraint(Sketcher.Constraint("Coincident", 8, 2, 9, 1))
sketch10.addConstraint(Sketcher.Constraint("Coincident", 9, 2, 10, 1))
sketch10.addConstraint(Sketcher.Constraint("Coincident", 10, 2, 11, 1))
sketch10.addConstraint(Sketcher.Constraint("Coincident", 11, 2, 6, 1))
sketch10.addConstraint(Sketcher.Constraint("Horizontal", 0))
sketch10.addConstraint(Sketcher.Constraint("Horizontal", 3))
sketch10.addConstraint(Sketcher.Constraint("Horizontal", 7))
sketch10.addConstraint(Sketcher.Constraint("Horizontal", 10))
sketch10.addConstraint(Sketcher.Constraint("Symmetric", 0, 2, 6, 2, -1))
sketch10.addConstraint(Sketcher.Constraint("Symmetric", 4, 2, 8, 2, -1))
sketch10.addConstraint(Sketcher.Constraint("Symmetric", 3, 2, 9, 2, -1))
sketch10.addConstraint(Sketcher.Constraint("Symmetric", 1, 2, 11, 2, -1))
sketch10.addConstraint(Sketcher.Constraint("Parallel", 1, 4))
sketch10.addConstraint(Sketcher.Constraint("Parallel", 2, 5))
sketch10.addConstraint(Sketcher.Constraint("Parallel", 5, 6))
sketch10.addConstraint(Sketcher.Constraint("Parallel", 4, 8))
sketch10.addConstraint(Sketcher.Constraint("Parallel", 8, 11))
sketch10.addConstraint(Sketcher.Constraint("Horizontal", 1, 2, 4, 2))
sketch10.addConstraint(Sketcher.Constraint("Vertical", 0, 2, 2, 2))
sketch10.addConstraint(Sketcher.Constraint("Angle", 1, Q("59.999996 deg")))
sketch10.addConstraint(Sketcher.Constraint("DistanceY", 6, 2, 2, 2, Q("11 mm")))
sketch10.addConstraint(Sketcher.Constraint("DistanceY", -1, 1, 0, 2, Q("2.7 mm")))
sketch10.addConstraint(Sketcher.Constraint("DistanceX", 0, 1, 0, 2, Q("3.233162 mm")))
sketch10.addConstraint(Sketcher.Constraint("DistanceX", -1, 1, 0, 2, Q("6.616581 mm")))
pocket9 = body.newObject("PartDesign::Pocket", "Pocket008")
pocket9.Profile = sketch10
pocket9.Length = 3

# Sketch on YZ plane
sketch11 = body.newObject("Sketcher::SketchObject", "Sketch010")
sketch11.AttachmentSupport = (doc.getObject("YZ_Plane"), [""])
sketch11.MapMode = "FlatFace"
sketch11.AttachmentOffset = App.Placement(App.Vector(0, 0, 9), App.Rotation())
sketch11.addGeometry(Part.LineSegment(App.Vector(-9, 15.8, 0), App.Vector(-9, 14.8, 0)), False)
sketch11.addGeometry(Part.LineSegment(App.Vector(-9, 14.8, 0), App.Vector(-2, 14.8, 0)), False)
sketch11.addGeometry(Part.LineSegment(App.Vector(-2, 14.8, 0), App.Vector(-2, 15.8, 0)), False)
sketch11.addGeometry(Part.LineSegment(App.Vector(-2, 15.8, 0), App.Vector(-9, 15.8, 0)), False)
sketch11.addGeometry(Part.LineSegment(App.Vector(-9, 17.8, 0), App.Vector(-9, 16.8, 0)), False)
sketch11.addGeometry(Part.LineSegment(App.Vector(-9, 16.8, 0), App.Vector(-2, 16.8, 0)), False)
sketch11.addGeometry(Part.LineSegment(App.Vector(-2, 16.8, 0), App.Vector(-2, 17.8, 0)), False)
sketch11.addGeometry(Part.LineSegment(App.Vector(-2, 17.8, 0), App.Vector(-9, 17.8, 0)), False)
sketch11.addGeometry(Part.LineSegment(App.Vector(-9, 19.8, 0), App.Vector(-9, 18.8, 0)), False)
sketch11.addGeometry(Part.LineSegment(App.Vector(-9, 18.8, 0), App.Vector(-2, 18.8, 0)), False)
sketch11.addGeometry(Part.LineSegment(App.Vector(-2, 18.8, 0), App.Vector(-2, 19.8, 0)), False)
sketch11.addGeometry(Part.LineSegment(App.Vector(-2, 19.8, 0), App.Vector(-9, 19.8, 0)), False)
sketch11.addGeometry(Part.LineSegment(App.Vector(-9, 21.8, 0), App.Vector(-9, 20.8, 0)), False)
sketch11.addGeometry(Part.LineSegment(App.Vector(-9, 20.8, 0), App.Vector(-2, 20.8, 0)), False)
sketch11.addGeometry(Part.LineSegment(App.Vector(-2, 20.8, 0), App.Vector(-2, 21.8, 0)), False)
sketch11.addGeometry(Part.LineSegment(App.Vector(-2, 21.8, 0), App.Vector(-9, 21.8, 0)), False)
sketch11.addGeometry(Part.LineSegment(App.Vector(2, 15.8, 0), App.Vector(2, 14.8, 0)), False)
sketch11.addGeometry(Part.LineSegment(App.Vector(2, 14.8, 0), App.Vector(9, 14.8, 0)), False)
sketch11.addGeometry(Part.LineSegment(App.Vector(9, 14.8, 0), App.Vector(9, 15.8, 0)), False)
sketch11.addGeometry(Part.LineSegment(App.Vector(9, 15.8, 0), App.Vector(2, 15.8, 0)), False)
sketch11.addGeometry(Part.LineSegment(App.Vector(2, 17.8, 0), App.Vector(2, 16.8, 0)), False)
sketch11.addGeometry(Part.LineSegment(App.Vector(2, 16.8, 0), App.Vector(9, 16.8, 0)), False)
sketch11.addGeometry(Part.LineSegment(App.Vector(9, 16.8, 0), App.Vector(9, 17.8, 0)), False)
sketch11.addGeometry(Part.LineSegment(App.Vector(9, 17.8, 0), App.Vector(2, 17.8, 0)), False)
sketch11.addGeometry(Part.LineSegment(App.Vector(2, 19.8, 0), App.Vector(2, 18.8, 0)), False)
sketch11.addGeometry(Part.LineSegment(App.Vector(2, 18.8, 0), App.Vector(9, 18.8, 0)), False)
sketch11.addGeometry(Part.LineSegment(App.Vector(9, 18.8, 0), App.Vector(9, 19.8, 0)), False)
sketch11.addGeometry(Part.LineSegment(App.Vector(9, 19.8, 0), App.Vector(2, 19.8, 0)), False)
sketch11.addGeometry(Part.LineSegment(App.Vector(2, 21.8, 0), App.Vector(2, 20.8, 0)), False)
sketch11.addGeometry(Part.LineSegment(App.Vector(2, 20.8, 0), App.Vector(9, 20.8, 0)), False)
sketch11.addGeometry(Part.LineSegment(App.Vector(9, 20.8, 0), App.Vector(9, 21.8, 0)), False)
sketch11.addGeometry(Part.LineSegment(App.Vector(9, 21.8, 0), App.Vector(2, 21.8, 0)), False)
sketch11.addGeometry(Part.LineSegment(App.Vector(-9, -20.8, 0), App.Vector(-9, -21.8, 0)), False)
sketch11.addGeometry(Part.LineSegment(App.Vector(-9, -21.8, 0), App.Vector(-2, -21.8, 0)), False)
sketch11.addGeometry(Part.LineSegment(App.Vector(-2, -21.8, 0), App.Vector(-2, -20.8, 0)), False)
sketch11.addGeometry(Part.LineSegment(App.Vector(-2, -20.8, 0), App.Vector(-9, -20.8, 0)), False)
sketch11.addGeometry(Part.LineSegment(App.Vector(-9, -18.8, 0), App.Vector(-9, -19.8, 0)), False)
sketch11.addGeometry(Part.LineSegment(App.Vector(-9, -19.8, 0), App.Vector(-2, -19.8, 0)), False)
sketch11.addGeometry(Part.LineSegment(App.Vector(-2, -19.8, 0), App.Vector(-2, -18.8, 0)), False)
sketch11.addGeometry(Part.LineSegment(App.Vector(-2, -18.8, 0), App.Vector(-9, -18.8, 0)), False)
sketch11.addGeometry(Part.LineSegment(App.Vector(-9, -16.8, 0), App.Vector(-9, -17.8, 0)), False)
sketch11.addGeometry(Part.LineSegment(App.Vector(-9, -17.8, 0), App.Vector(-2, -17.8, 0)), False)
sketch11.addGeometry(Part.LineSegment(App.Vector(-2, -17.8, 0), App.Vector(-2, -16.8, 0)), False)
sketch11.addGeometry(Part.LineSegment(App.Vector(-2, -16.8, 0), App.Vector(-9, -16.8, 0)), False)
sketch11.addGeometry(Part.LineSegment(App.Vector(-9, -14.8, 0), App.Vector(-9, -15.8, 0)), False)
sketch11.addGeometry(Part.LineSegment(App.Vector(-9, -15.8, 0), App.Vector(-2, -15.8, 0)), False)
sketch11.addGeometry(Part.LineSegment(App.Vector(-2, -15.8, 0), App.Vector(-2, -14.8, 0)), False)
sketch11.addGeometry(Part.LineSegment(App.Vector(-2, -14.8, 0), App.Vector(-9, -14.8, 0)), False)
sketch11.addGeometry(Part.LineSegment(App.Vector(2, -20.8, 0), App.Vector(2, -21.8, 0)), False)
sketch11.addGeometry(Part.LineSegment(App.Vector(2, -21.8, 0), App.Vector(9, -21.8, 0)), False)
sketch11.addGeometry(Part.LineSegment(App.Vector(9, -21.8, 0), App.Vector(9, -20.8, 0)), False)
sketch11.addGeometry(Part.LineSegment(App.Vector(9, -20.8, 0), App.Vector(2, -20.8, 0)), False)
sketch11.addGeometry(Part.LineSegment(App.Vector(2, -18.8, 0), App.Vector(2, -19.8, 0)), False)
sketch11.addGeometry(Part.LineSegment(App.Vector(2, -19.8, 0), App.Vector(9, -19.8, 0)), False)
sketch11.addGeometry(Part.LineSegment(App.Vector(9, -19.8, 0), App.Vector(9, -18.8, 0)), False)
sketch11.addGeometry(Part.LineSegment(App.Vector(9, -18.8, 0), App.Vector(2, -18.8, 0)), False)
sketch11.addGeometry(Part.LineSegment(App.Vector(2, -16.8, 0), App.Vector(2, -17.8, 0)), False)
sketch11.addGeometry(Part.LineSegment(App.Vector(2, -17.8, 0), App.Vector(9, -17.8, 0)), False)
sketch11.addGeometry(Part.LineSegment(App.Vector(9, -17.8, 0), App.Vector(9, -16.8, 0)), False)
sketch11.addGeometry(Part.LineSegment(App.Vector(9, -16.8, 0), App.Vector(2, -16.8, 0)), False)
sketch11.addGeometry(Part.LineSegment(App.Vector(2, -14.8, 0), App.Vector(2, -15.8, 0)), False)
sketch11.addGeometry(Part.LineSegment(App.Vector(2, -15.8, 0), App.Vector(9, -15.8, 0)), False)
sketch11.addGeometry(Part.LineSegment(App.Vector(9, -15.8, 0), App.Vector(9, -14.8, 0)), False)
sketch11.addGeometry(Part.LineSegment(App.Vector(9, -14.8, 0), App.Vector(2, -14.8, 0)), False)
sketch11.addConstraint(Sketcher.Constraint("Coincident", 0, 2, 1, 1))
sketch11.addConstraint(Sketcher.Constraint("Coincident", 1, 2, 2, 1))
sketch11.addConstraint(Sketcher.Constraint("Coincident", 2, 2, 3, 1))
sketch11.addConstraint(Sketcher.Constraint("Coincident", 3, 2, 0, 1))
sketch11.addConstraint(Sketcher.Constraint("Coincident", 4, 2, 5, 1))
sketch11.addConstraint(Sketcher.Constraint("Coincident", 5, 2, 6, 1))
sketch11.addConstraint(Sketcher.Constraint("Coincident", 6, 2, 7, 1))
sketch11.addConstraint(Sketcher.Constraint("Coincident", 7, 2, 4, 1))
sketch11.addConstraint(Sketcher.Constraint("Coincident", 8, 2, 9, 1))
sketch11.addConstraint(Sketcher.Constraint("Coincident", 9, 2, 10, 1))
sketch11.addConstraint(Sketcher.Constraint("Coincident", 10, 2, 11, 1))
sketch11.addConstraint(Sketcher.Constraint("Coincident", 11, 2, 8, 1))
sketch11.addConstraint(Sketcher.Constraint("Coincident", 12, 2, 13, 1))
sketch11.addConstraint(Sketcher.Constraint("Coincident", 13, 2, 14, 1))
sketch11.addConstraint(Sketcher.Constraint("Coincident", 14, 2, 15, 1))
sketch11.addConstraint(Sketcher.Constraint("Coincident", 15, 2, 12, 1))
sketch11.addConstraint(Sketcher.Constraint("Coincident", 16, 2, 17, 1))
sketch11.addConstraint(Sketcher.Constraint("Coincident", 17, 2, 18, 1))
sketch11.addConstraint(Sketcher.Constraint("Coincident", 18, 2, 19, 1))
sketch11.addConstraint(Sketcher.Constraint("Coincident", 19, 2, 16, 1))
sketch11.addConstraint(Sketcher.Constraint("Coincident", 20, 2, 21, 1))
sketch11.addConstraint(Sketcher.Constraint("Coincident", 21, 2, 22, 1))
sketch11.addConstraint(Sketcher.Constraint("Coincident", 22, 2, 23, 1))
sketch11.addConstraint(Sketcher.Constraint("Coincident", 23, 2, 20, 1))
sketch11.addConstraint(Sketcher.Constraint("Coincident", 24, 2, 25, 1))
sketch11.addConstraint(Sketcher.Constraint("Coincident", 25, 2, 26, 1))
sketch11.addConstraint(Sketcher.Constraint("Coincident", 26, 2, 27, 1))
sketch11.addConstraint(Sketcher.Constraint("Coincident", 27, 2, 24, 1))
sketch11.addConstraint(Sketcher.Constraint("Coincident", 28, 2, 29, 1))
sketch11.addConstraint(Sketcher.Constraint("Coincident", 29, 2, 30, 1))
sketch11.addConstraint(Sketcher.Constraint("Coincident", 30, 2, 31, 1))
sketch11.addConstraint(Sketcher.Constraint("Coincident", 31, 2, 28, 1))
sketch11.addConstraint(Sketcher.Constraint("Coincident", 32, 2, 33, 1))
sketch11.addConstraint(Sketcher.Constraint("Coincident", 33, 2, 34, 1))
sketch11.addConstraint(Sketcher.Constraint("Coincident", 34, 2, 35, 1))
sketch11.addConstraint(Sketcher.Constraint("Coincident", 35, 2, 32, 1))
sketch11.addConstraint(Sketcher.Constraint("Coincident", 36, 2, 37, 1))
sketch11.addConstraint(Sketcher.Constraint("Coincident", 37, 2, 38, 1))
sketch11.addConstraint(Sketcher.Constraint("Coincident", 38, 2, 39, 1))
sketch11.addConstraint(Sketcher.Constraint("Coincident", 39, 2, 36, 1))
sketch11.addConstraint(Sketcher.Constraint("Coincident", 40, 2, 41, 1))
sketch11.addConstraint(Sketcher.Constraint("Coincident", 41, 2, 42, 1))
sketch11.addConstraint(Sketcher.Constraint("Coincident", 42, 2, 43, 1))
sketch11.addConstraint(Sketcher.Constraint("Coincident", 43, 2, 40, 1))
sketch11.addConstraint(Sketcher.Constraint("Coincident", 44, 2, 45, 1))
sketch11.addConstraint(Sketcher.Constraint("Coincident", 45, 2, 46, 1))
sketch11.addConstraint(Sketcher.Constraint("Coincident", 46, 2, 47, 1))
sketch11.addConstraint(Sketcher.Constraint("Coincident", 47, 2, 44, 1))
sketch11.addConstraint(Sketcher.Constraint("Coincident", 48, 2, 49, 1))
sketch11.addConstraint(Sketcher.Constraint("Coincident", 49, 2, 50, 1))
sketch11.addConstraint(Sketcher.Constraint("Coincident", 50, 2, 51, 1))
sketch11.addConstraint(Sketcher.Constraint("Coincident", 51, 2, 48, 1))
sketch11.addConstraint(Sketcher.Constraint("Coincident", 52, 2, 53, 1))
sketch11.addConstraint(Sketcher.Constraint("Coincident", 53, 2, 54, 1))
sketch11.addConstraint(Sketcher.Constraint("Coincident", 54, 2, 55, 1))
sketch11.addConstraint(Sketcher.Constraint("Coincident", 55, 2, 52, 1))
sketch11.addConstraint(Sketcher.Constraint("Coincident", 56, 2, 57, 1))
sketch11.addConstraint(Sketcher.Constraint("Coincident", 57, 2, 58, 1))
sketch11.addConstraint(Sketcher.Constraint("Coincident", 58, 2, 59, 1))
sketch11.addConstraint(Sketcher.Constraint("Coincident", 59, 2, 56, 1))
sketch11.addConstraint(Sketcher.Constraint("Coincident", 60, 2, 61, 1))
sketch11.addConstraint(Sketcher.Constraint("Coincident", 61, 2, 62, 1))
sketch11.addConstraint(Sketcher.Constraint("Coincident", 62, 2, 63, 1))
sketch11.addConstraint(Sketcher.Constraint("Coincident", 63, 2, 60, 1))
sketch11.addConstraint(Sketcher.Constraint("Vertical", 0))
sketch11.addConstraint(Sketcher.Constraint("Horizontal", 1))
sketch11.addConstraint(Sketcher.Constraint("Vertical", 2))
sketch11.addConstraint(Sketcher.Constraint("Horizontal", 3))
sketch11.addConstraint(Sketcher.Constraint("Vertical", 4))
sketch11.addConstraint(Sketcher.Constraint("Horizontal", 5))
sketch11.addConstraint(Sketcher.Constraint("Vertical", 6))
sketch11.addConstraint(Sketcher.Constraint("Horizontal", 7))
sketch11.addConstraint(Sketcher.Constraint("Vertical", 8))
sketch11.addConstraint(Sketcher.Constraint("Horizontal", 9))
sketch11.addConstraint(Sketcher.Constraint("Vertical", 10))
sketch11.addConstraint(Sketcher.Constraint("Horizontal", 11))
sketch11.addConstraint(Sketcher.Constraint("Vertical", 12))
sketch11.addConstraint(Sketcher.Constraint("Horizontal", 13))
sketch11.addConstraint(Sketcher.Constraint("Vertical", 14))
sketch11.addConstraint(Sketcher.Constraint("Horizontal", 15))
sketch11.addConstraint(Sketcher.Constraint("Vertical", 16))
sketch11.addConstraint(Sketcher.Constraint("Horizontal", 17))
sketch11.addConstraint(Sketcher.Constraint("Vertical", 18))
sketch11.addConstraint(Sketcher.Constraint("Horizontal", 19))
sketch11.addConstraint(Sketcher.Constraint("Vertical", 20))
sketch11.addConstraint(Sketcher.Constraint("Horizontal", 21))
sketch11.addConstraint(Sketcher.Constraint("Vertical", 22))
sketch11.addConstraint(Sketcher.Constraint("Horizontal", 23))
sketch11.addConstraint(Sketcher.Constraint("Vertical", 24))
sketch11.addConstraint(Sketcher.Constraint("Horizontal", 25))
sketch11.addConstraint(Sketcher.Constraint("Vertical", 26))
sketch11.addConstraint(Sketcher.Constraint("Horizontal", 27))
sketch11.addConstraint(Sketcher.Constraint("Vertical", 28))
sketch11.addConstraint(Sketcher.Constraint("Horizontal", 29))
sketch11.addConstraint(Sketcher.Constraint("Vertical", 30))
sketch11.addConstraint(Sketcher.Constraint("Horizontal", 31))
sketch11.addConstraint(Sketcher.Constraint("Vertical", 32))
sketch11.addConstraint(Sketcher.Constraint("Horizontal", 33))
sketch11.addConstraint(Sketcher.Constraint("Vertical", 34))
sketch11.addConstraint(Sketcher.Constraint("Horizontal", 35))
sketch11.addConstraint(Sketcher.Constraint("Vertical", 36))
sketch11.addConstraint(Sketcher.Constraint("Horizontal", 37))
sketch11.addConstraint(Sketcher.Constraint("Vertical", 38))
sketch11.addConstraint(Sketcher.Constraint("Horizontal", 39))
sketch11.addConstraint(Sketcher.Constraint("Vertical", 40))
sketch11.addConstraint(Sketcher.Constraint("Horizontal", 41))
sketch11.addConstraint(Sketcher.Constraint("Vertical", 42))
sketch11.addConstraint(Sketcher.Constraint("Horizontal", 43))
sketch11.addConstraint(Sketcher.Constraint("Vertical", 44))
sketch11.addConstraint(Sketcher.Constraint("Horizontal", 45))
sketch11.addConstraint(Sketcher.Constraint("Vertical", 46))
sketch11.addConstraint(Sketcher.Constraint("Horizontal", 47))
sketch11.addConstraint(Sketcher.Constraint("Vertical", 48))
sketch11.addConstraint(Sketcher.Constraint("Horizontal", 49))
sketch11.addConstraint(Sketcher.Constraint("Vertical", 50))
sketch11.addConstraint(Sketcher.Constraint("Horizontal", 51))
sketch11.addConstraint(Sketcher.Constraint("Vertical", 52))
sketch11.addConstraint(Sketcher.Constraint("Horizontal", 53))
sketch11.addConstraint(Sketcher.Constraint("Vertical", 54))
sketch11.addConstraint(Sketcher.Constraint("Horizontal", 55))
sketch11.addConstraint(Sketcher.Constraint("Vertical", 56))
sketch11.addConstraint(Sketcher.Constraint("Horizontal", 57))
sketch11.addConstraint(Sketcher.Constraint("Vertical", 58))
sketch11.addConstraint(Sketcher.Constraint("Horizontal", 59))
sketch11.addConstraint(Sketcher.Constraint("Vertical", 60))
sketch11.addConstraint(Sketcher.Constraint("Horizontal", 61))
sketch11.addConstraint(Sketcher.Constraint("Vertical", 62))
sketch11.addConstraint(Sketcher.Constraint("Horizontal", 63))
sketch11.addConstraint(Sketcher.Constraint("Symmetric", 30, 2, 32, 2, -1, 1))
sketch11.addConstraint(Sketcher.Constraint("Symmetric", 28, 2, 34, 2, -1, 1))
sketch11.addConstraint(Sketcher.Constraint("Symmetric", 26, 2, 36, 2, -1, 1))
sketch11.addConstraint(Sketcher.Constraint("Symmetric", 24, 2, 38, 2, -1, 1))
sketch11.addConstraint(Sketcher.Constraint("Symmetric", 22, 2, 40, 2, -1, 1))
sketch11.addConstraint(Sketcher.Constraint("Symmetric", 20, 2, 42, 2, -1, 1))
sketch11.addConstraint(Sketcher.Constraint("Symmetric", 18, 2, 44, 2, -1, 1))
sketch11.addConstraint(Sketcher.Constraint("Symmetric", 16, 2, 46, 2, -1, 1))
sketch11.addConstraint(Sketcher.Constraint("Symmetric", 14, 2, 48, 2, -1, 1))
sketch11.addConstraint(Sketcher.Constraint("Symmetric", 12, 2, 50, 2, -1, 1))
sketch11.addConstraint(Sketcher.Constraint("Symmetric", 10, 2, 52, 2, -1, 1))
sketch11.addConstraint(Sketcher.Constraint("Symmetric", 8, 2, 54, 2, -1, 1))
sketch11.addConstraint(Sketcher.Constraint("Symmetric", 6, 2, 56, 2, -1, 1))
sketch11.addConstraint(Sketcher.Constraint("Symmetric", 4, 2, 58, 2, -1, 1))
sketch11.addConstraint(Sketcher.Constraint("Symmetric", 2, 2, 60, 2, -1, 1))
sketch11.addConstraint(Sketcher.Constraint("Symmetric", 0, 2, 62, 2, -1, 1))
sketch11.addConstraint(Sketcher.Constraint("Symmetric", 1, 2, 16, 2, -2))
sketch11.addConstraint(Sketcher.Constraint("Symmetric", 3, 2, 18, 2, -2))
sketch11.addConstraint(Sketcher.Constraint("Symmetric", 5, 2, 20, 2, -2))
sketch11.addConstraint(Sketcher.Constraint("Symmetric", 7, 2, 22, 2, -2))
sketch11.addConstraint(Sketcher.Constraint("Symmetric", 9, 2, 24, 2, -2))
sketch11.addConstraint(Sketcher.Constraint("Symmetric", 11, 2, 26, 2, -2))
sketch11.addConstraint(Sketcher.Constraint("Symmetric", 13, 2, 28, 2, -2))
sketch11.addConstraint(Sketcher.Constraint("Symmetric", 15, 2, 30, 2, -2))
sketch11.addConstraint(Sketcher.Constraint("Vertical", 3, 2, 4, 2))
sketch11.addConstraint(Sketcher.Constraint("Vertical", 2, 2, 5, 2))
sketch11.addConstraint(Sketcher.Constraint("Vertical", 7, 2, 8, 2))
sketch11.addConstraint(Sketcher.Constraint("Vertical", 6, 2, 9, 2))
sketch11.addConstraint(Sketcher.Constraint("Vertical", 11, 2, 12, 2))
sketch11.addConstraint(Sketcher.Constraint("Vertical", 10, 2, 13, 2))
sketch11.addConstraint(Sketcher.Constraint("Equal", 2, 4))
sketch11.addConstraint(Sketcher.Constraint("Equal", 6, 8))
sketch11.addConstraint(Sketcher.Constraint("Equal", 10, 12))
sketch11.addConstraint(Sketcher.Constraint("DistanceX", 1, 1, 1, 2, Q("7 mm")))
sketch11.addConstraint(Sketcher.Constraint("DistanceY", 0, 2, 0, 1, Q("1 mm")))
sketch11.addConstraint(Sketcher.Constraint("DistanceX", 0, 2, -1, 1, Q("9 mm")))
sketch11.addConstraint(Sketcher.Constraint("DistanceY", -1, 1, 0, 2, Q("14.75 mm")))
sketch11.addConstraint(Sketcher.Constraint("DistanceY", -1, 1, 4, 2, Q("16.75 mm")))
sketch11.addConstraint(Sketcher.Constraint("DistanceY", -1, 1, 8, 2, Q("18.75 mm")))
sketch11.addConstraint(Sketcher.Constraint("DistanceY", -1, 1, 12, 2, Q("20.75 mm")))
pocket10 = body.newObject("PartDesign::Pocket", "Pocket009")
pocket10.Profile = sketch11
pocket10.Length = 1

doc.recompute()
